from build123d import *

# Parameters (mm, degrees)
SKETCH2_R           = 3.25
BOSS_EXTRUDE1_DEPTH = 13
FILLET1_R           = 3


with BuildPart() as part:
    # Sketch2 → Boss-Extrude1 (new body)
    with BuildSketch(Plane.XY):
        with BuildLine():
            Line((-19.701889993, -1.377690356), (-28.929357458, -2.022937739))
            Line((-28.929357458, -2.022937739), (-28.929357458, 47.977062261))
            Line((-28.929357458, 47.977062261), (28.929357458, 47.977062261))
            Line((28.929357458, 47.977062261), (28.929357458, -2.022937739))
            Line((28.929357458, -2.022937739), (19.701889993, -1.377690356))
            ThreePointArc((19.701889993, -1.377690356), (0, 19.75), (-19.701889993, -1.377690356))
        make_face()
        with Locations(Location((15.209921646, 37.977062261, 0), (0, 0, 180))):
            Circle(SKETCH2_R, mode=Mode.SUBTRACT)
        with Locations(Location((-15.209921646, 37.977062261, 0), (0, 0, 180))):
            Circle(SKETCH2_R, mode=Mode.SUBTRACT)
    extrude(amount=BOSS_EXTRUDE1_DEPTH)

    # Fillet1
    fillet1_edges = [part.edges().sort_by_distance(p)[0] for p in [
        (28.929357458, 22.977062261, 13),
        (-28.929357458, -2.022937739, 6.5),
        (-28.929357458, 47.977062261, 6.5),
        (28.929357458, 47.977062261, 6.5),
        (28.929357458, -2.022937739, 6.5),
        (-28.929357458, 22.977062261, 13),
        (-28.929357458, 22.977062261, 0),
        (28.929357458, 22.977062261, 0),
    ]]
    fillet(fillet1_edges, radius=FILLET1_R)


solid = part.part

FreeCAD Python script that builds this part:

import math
import FreeCAD as App
import Part
import Sketcher
Q = App.Units.Quantity


def edges_at(feature, points):
    """Names of the edges that pass closest to the given points."""
    edges = feature.Shape.Edges
    near = lambda p: min(range(len(edges)), key=lambda i: edges[i].distToShape(Part.Vertex(*p))[0])
    return sorted({f"Edge{near(p) + 1}" for p in points})

doc = App.newDocument("Part")
body = doc.addObject("PartDesign::Body", "Body")

sketch1 = body.newObject("Sketcher::SketchObject", "Sketch")
sketch1.AttachmentSupport = (doc.getObject("XY_Plane"), [""])
sketch1.MapMode = "FlatFace"
sketch1.addGeometry(Part.LineSegment(App.Vector(-28.929357, -2.022938, 0), App.Vector(-19.70189, -1.37769, 0)), False)
sketch1.addGeometry(Part.ArcOfCircle(Part.Circle(App.Vector(0, 0, 0), App.Vector(0, 0, 1), 19.75), math.radians(-4), math.radians(184)), False)
sketch1.addGeometry(Part.LineSegment(App.Vector(19.70189, -1.37769, 0), App.Vector(28.929357, -2.022938, 0)), False)
sketch1.addGeometry(Part.LineSegment(App.Vector(28.929357, -2.022938, 0), App.Vector(28.929357, 47.977062, 0)), False)
sketch1.addGeometry(Part.LineSegment(App.Vector(28.929357, 47.977062, 0), App.Vector(-28.929357, 47.977062, 0)), False)
sketch1.addGeometry(Part.LineSegment(App.Vector(-28.929357, 47.977062, 0), App.Vector(-28.929357, -2.022938, 0)), False)
sketch1.addGeometry(Part.Circle(App.Vector(15.209922, 37.977062, 0), App.Vector(0, 0, 1), 3.25), False)
sketch1.addGeometry(Part.Circle(App.Vector(-15.209922, 37.977062, 0), App.Vector(0, 0, 1), 3.25), False)
sketch1.addConstraint(Sketcher.Constraint("Coincident", 0, 2, 1, 2))
sketch1.addConstraint(Sketcher.Constraint("Coincident", 1, 1, 2, 1))
sketch1.addConstraint(Sketcher.Constraint("Coincident", 2, 2, 3, 1))
sketch1.addConstraint(Sketcher.Constraint("Coincident", 3, 2, 4, 1))
sketch1.addConstraint(Sketcher.Constraint("Coincident", 4, 2, 5, 1))
sketch1.addConstraint(Sketcher.Constraint("Coincident", 5, 2, 0, 1))
sketch1.addConstraint(Sketcher.Constraint("Vertical", 3))
sketch1.addConstraint(Sketcher.Constraint("Horizontal", 4))
sketch1.addConstraint(Sketcher.Constraint("Vertical", 5))
sketch1.addConstraint(Sketcher.Constraint("Coincident", 1, 3, -1, 1))
sketch1.addConstraint(Sketcher.Constraint("Equal", 6, 7))
sketch1.addConstraint(Sketcher.Constraint("Symmetric", 6, 3, 7, 3, -2))
sketch1.addConstraint(Sketcher.Constraint("Symmetric", 2, 2, 5, 2, -2))
sketch1.addConstraint(Sketcher.Constraint("Horizontal", 0, 2, 1, 1))
sketch1.addConstraint(Sketcher.Constraint("Diameter", 6, 6.5))
sketch1.addConstraint(Sketcher.Constraint("DistanceY", 3, 1, 3, 2, 50.0))
sketch1.addConstraint(Sketcher.Constraint("Angle", 0, Q("4 deg")))
sketch1.addConstraint(Sketcher.Constraint("Radius", 1, 19.75))
sketch1.addConstraint(Sketcher.Constraint("DistanceY", 2, 2, 6, 3, 40.0))
sketch1.addConstraint(Sketcher.Constraint("Distance", 0, 9.25))
sketch1.addConstraint(Sketcher.Constraint("DistanceX", 4, 2, 4, 1, 57.858715))
sketch1.addConstraint(Sketcher.Constraint("DistanceX", -1, 1, 6, 3, 15.209922))
pad1 = body.newObject("PartDesign::Pad", "Pad")
pad1.Profile = sketch1
pad1.Length = 13
doc.recompute()

fillet = body.newObject("PartDesign::Fillet", "Fillet")
fillet.Base = (pad1, edges_at(pad1, [
    (28.929, 22.977, 13),
    (-28.929, -2.023, 6.5),
    (-28.929, 47.977, 6.5),
    (28.929, 47.977, 6.5),
    (28.929, -2.023, 6.5),
    (-28.929, 22.977, 13),
    (-28.929, 22.977, 0),
    (28.929, 22.977, 0),
]))
fillet.Radius = 3

doc.recompute()
